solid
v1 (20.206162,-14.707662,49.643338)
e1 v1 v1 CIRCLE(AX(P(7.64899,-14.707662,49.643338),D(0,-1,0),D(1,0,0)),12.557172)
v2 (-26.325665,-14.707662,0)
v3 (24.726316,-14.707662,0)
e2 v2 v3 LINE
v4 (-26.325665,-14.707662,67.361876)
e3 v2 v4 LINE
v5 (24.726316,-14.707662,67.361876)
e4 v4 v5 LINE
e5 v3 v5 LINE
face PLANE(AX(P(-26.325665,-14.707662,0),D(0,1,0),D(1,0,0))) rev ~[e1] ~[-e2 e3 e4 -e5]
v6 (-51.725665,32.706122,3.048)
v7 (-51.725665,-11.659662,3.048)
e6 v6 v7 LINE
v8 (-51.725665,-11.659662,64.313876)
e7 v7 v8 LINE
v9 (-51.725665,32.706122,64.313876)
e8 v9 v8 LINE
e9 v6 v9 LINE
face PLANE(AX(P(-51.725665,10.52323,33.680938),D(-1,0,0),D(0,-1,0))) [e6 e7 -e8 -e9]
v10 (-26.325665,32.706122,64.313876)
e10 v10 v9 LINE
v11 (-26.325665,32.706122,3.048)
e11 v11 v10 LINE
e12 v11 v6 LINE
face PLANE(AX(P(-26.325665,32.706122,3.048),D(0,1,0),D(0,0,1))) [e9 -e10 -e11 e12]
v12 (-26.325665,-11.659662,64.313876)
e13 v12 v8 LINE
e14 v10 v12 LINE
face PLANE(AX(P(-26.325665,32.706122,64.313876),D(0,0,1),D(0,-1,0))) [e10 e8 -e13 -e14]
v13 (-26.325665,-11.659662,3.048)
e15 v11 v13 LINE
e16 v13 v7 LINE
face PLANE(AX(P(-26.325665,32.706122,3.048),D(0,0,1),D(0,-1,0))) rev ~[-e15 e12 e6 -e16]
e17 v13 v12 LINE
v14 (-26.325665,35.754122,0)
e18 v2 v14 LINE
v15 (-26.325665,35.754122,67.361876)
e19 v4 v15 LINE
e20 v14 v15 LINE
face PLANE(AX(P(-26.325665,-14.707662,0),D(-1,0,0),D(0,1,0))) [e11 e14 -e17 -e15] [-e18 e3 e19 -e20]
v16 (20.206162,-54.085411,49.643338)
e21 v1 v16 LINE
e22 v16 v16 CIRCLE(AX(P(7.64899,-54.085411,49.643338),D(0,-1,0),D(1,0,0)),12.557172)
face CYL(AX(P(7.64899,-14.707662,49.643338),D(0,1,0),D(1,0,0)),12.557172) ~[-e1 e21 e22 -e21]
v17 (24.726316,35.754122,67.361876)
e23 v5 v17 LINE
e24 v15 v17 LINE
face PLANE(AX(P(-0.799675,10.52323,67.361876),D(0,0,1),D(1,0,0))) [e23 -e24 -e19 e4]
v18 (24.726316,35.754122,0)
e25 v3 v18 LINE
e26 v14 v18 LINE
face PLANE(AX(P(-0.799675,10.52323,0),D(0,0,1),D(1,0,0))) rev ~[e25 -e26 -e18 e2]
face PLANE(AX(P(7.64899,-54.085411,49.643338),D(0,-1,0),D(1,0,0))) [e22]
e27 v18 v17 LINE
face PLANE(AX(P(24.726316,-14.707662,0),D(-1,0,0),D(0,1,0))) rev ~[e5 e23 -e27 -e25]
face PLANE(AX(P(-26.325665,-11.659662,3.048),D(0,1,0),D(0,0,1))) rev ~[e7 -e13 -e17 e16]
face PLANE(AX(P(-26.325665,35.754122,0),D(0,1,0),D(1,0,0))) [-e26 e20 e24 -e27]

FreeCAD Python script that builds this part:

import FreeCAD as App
import Part
import Sketcher

V = App.Vector
Q = App.Units.Quantity


def add_polygon(sketch, points):
    """Adds a closed chain of lines whose ends are joined by coincident constraints."""
    first, n = sketch.GeometryCount, len(points)
    for a, b in zip(points, points[1:] + points[:1]):
        sketch.addGeometry(Part.LineSegment(App.Vector(*a, 0), App.Vector(*b, 0)), False)
    for i in range(n):
        sketch.addConstraint(Sketcher.Constraint("Coincident", first + i, 2, first + (i + 1) % n, 1))

doc = App.newDocument("Part")
body = doc.addObject("PartDesign::Body", "Body")

# Sketch on XY plane
sketch1 = body.newObject("Sketcher::SketchObject", "Sketch")
sketch1.AttachmentSupport = (doc.getObject("XY_Plane"), [""])
sketch1.MapMode = "FlatFace"
add_polygon(sketch1, [(-26.325665, 35.754122), (-26.325665, -14.707662), (24.726316, -14.707662), (24.726316, 35.754122)])  # lines 0-3
sketch1.addConstraint(Sketcher.Constraint("Vertical", 0))
sketch1.addConstraint(Sketcher.Constraint("Horizontal", 1))
sketch1.addConstraint(Sketcher.Constraint("Vertical", 2))
sketch1.addConstraint(Sketcher.Constraint("Horizontal", 3))
sketch1.addConstraint(Sketcher.Constraint("DistanceX", 1, 1, 1, 2, Q("51.051982 mm")))
sketch1.addConstraint(Sketcher.Constraint("DistanceY", 0, 2, 0, 1, Q("50.461784 mm")))
sketch1.addConstraint(Sketcher.Constraint("DistanceY", -1, 1, 2, 2, Q("35.754122 mm")))
sketch1.addConstraint(Sketcher.Constraint("DistanceX", 0, 2, -1, 1, Q("26.325665 mm")))
pad1 = body.newObject("PartDesign::Pad", "Pad")
pad1.Profile = sketch1
pad1.Length = 67.361876

# Sketch on XZ plane
sketch2 = body.newObject("Sketcher::SketchObject", "Sketch001")
sketch2.AttachmentSupport = (doc.getObject("XZ_Plane"), [""])
sketch2.MapMode = "FlatFace"
sketch2.AttachmentOffset = App.Placement(V(0, 0, 14.707662), App.Rotation())
sketch2.addGeometry(Part.Circle(V(7.64899, 49.643338, 0), V(0, 0, 1), 12.557172), False)
sketch2.addConstraint(Sketcher.Constraint("Diameter", 0, Q("25.114344 mm")))
sketch2.addConstraint(Sketcher.Constraint("DistanceX", -1, 1, 0, 3, Q("7.64899 mm")))
sketch2.addConstraint(Sketcher.Constraint("DistanceY", -1, 1, 0, 3, Q("49.643338 mm")))
pad2 = body.newObject("PartDesign::Pad", "Pad001")
pad2.Profile = sketch2
pad2.Length = 39.377749

# Sketch on YZ plane
sketch3 = body.newObject("Sketcher::SketchObject", "Sketch002")
sketch3.AttachmentSupport = (doc.getObject("YZ_Plane"), [""])
sketch3.MapMode = "FlatFace"
sketch3.AttachmentOffset = App.Placement(V(0, 0, -26.325665), App.Rotation())
add_polygon(sketch3, [(32.706122, 64.313876), (32.706122, 3.048), (-11.659662, 3.048), (-11.659662, 64.313876)])  # lines 0-3
sketch3.addConstraint(Sketcher.Constraint("Vertical", 0))
sketch3.addConstraint(Sketcher.Constraint("Horizontal", 1))
sketch3.addConstraint(Sketcher.Constraint("Vertical", 2))
sketch3.addConstraint(Sketcher.Constraint("Horizontal", 3))
sketch3.addConstraint(Sketcher.Constraint("DistanceY", -1, 1, 0, 2, Q("0.12 in")))
sketch3.addConstraint(Sketcher.Constraint("DistanceX", 1, 2, 1, 1, Q("44.365784 mm")))
sketch3.addConstraint(Sketcher.Constraint("DistanceY", 0, 2, 0, 1, Q("61.265876 mm")))
sketch3.addConstraint(Sketcher.Constraint("DistanceX", -1, 1, 0, 2, Q("32.706122 mm")))
pad3 = body.newObject("PartDesign::Pad", "Pad002")
pad3.Profile = sketch3
pad3.Length = Q("1 in")
pad3.Reversed = True

doc.recompute()
